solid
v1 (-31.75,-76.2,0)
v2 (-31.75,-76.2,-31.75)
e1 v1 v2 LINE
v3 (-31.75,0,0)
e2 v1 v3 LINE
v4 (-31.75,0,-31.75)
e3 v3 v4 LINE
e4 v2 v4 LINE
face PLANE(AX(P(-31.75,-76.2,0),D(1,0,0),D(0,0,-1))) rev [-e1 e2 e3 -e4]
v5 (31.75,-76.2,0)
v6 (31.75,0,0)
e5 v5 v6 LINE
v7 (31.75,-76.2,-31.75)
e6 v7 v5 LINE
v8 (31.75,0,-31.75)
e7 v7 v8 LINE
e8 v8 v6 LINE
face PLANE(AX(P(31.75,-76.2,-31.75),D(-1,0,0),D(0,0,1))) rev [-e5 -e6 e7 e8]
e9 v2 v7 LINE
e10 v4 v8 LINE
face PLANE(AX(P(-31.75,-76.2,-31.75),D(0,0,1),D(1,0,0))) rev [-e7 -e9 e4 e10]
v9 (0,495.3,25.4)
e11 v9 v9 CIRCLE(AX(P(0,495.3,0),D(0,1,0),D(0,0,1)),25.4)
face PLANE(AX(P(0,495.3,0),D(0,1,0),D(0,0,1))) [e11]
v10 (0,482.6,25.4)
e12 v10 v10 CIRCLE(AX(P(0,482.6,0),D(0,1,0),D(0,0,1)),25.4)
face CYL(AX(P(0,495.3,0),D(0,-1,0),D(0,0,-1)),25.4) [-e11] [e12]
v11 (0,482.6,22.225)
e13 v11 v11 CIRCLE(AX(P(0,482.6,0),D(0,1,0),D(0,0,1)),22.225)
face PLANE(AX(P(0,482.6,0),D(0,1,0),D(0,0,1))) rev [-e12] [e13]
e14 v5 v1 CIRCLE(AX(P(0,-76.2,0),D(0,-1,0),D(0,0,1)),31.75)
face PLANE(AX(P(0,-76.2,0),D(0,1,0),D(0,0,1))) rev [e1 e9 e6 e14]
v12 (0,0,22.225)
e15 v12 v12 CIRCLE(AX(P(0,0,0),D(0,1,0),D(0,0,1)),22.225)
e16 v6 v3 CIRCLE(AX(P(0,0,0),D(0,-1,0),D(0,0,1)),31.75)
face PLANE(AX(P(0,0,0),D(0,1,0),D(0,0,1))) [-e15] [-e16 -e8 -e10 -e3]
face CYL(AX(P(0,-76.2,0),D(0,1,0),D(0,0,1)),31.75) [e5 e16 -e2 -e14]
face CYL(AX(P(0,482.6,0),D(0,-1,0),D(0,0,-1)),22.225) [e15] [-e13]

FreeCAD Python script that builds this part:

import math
import FreeCAD as App
import Part
import Sketcher
Q = App.Units.Quantity

doc = App.newDocument("Part")
body = doc.addObject("PartDesign::Body", "Body")

# Sketch on XZ plane
sketch1 = body.newObject("Sketcher::SketchObject", "Sketch")
sketch1.AttachmentSupport = (doc.getObject("XZ_Plane"), [""])
sketch1.MapMode = "FlatFace"
sketch1.addGeometry(Part.Circle(App.Vector(0, 0, 0), App.Vector(0, 0, 1), 22), False)
sketch1.addConstraint(Sketcher.Constraint("Coincident", 0, 3, -1, 1))
sketch1.addConstraint(Sketcher.Constraint("Diameter", 0, Q("1.75 in")))
pad1 = body.newObject("PartDesign::Pad", "Pad")
pad1.Profile = sketch1
pad1.Length = Q("19 in")
pad1.Reversed = True

# Sketch on XZ plane
sketch2 = body.newObject("Sketcher::SketchObject", "Sketch001")
sketch2.AttachmentSupport = (doc.getObject("XZ_Plane"), [""])
sketch2.MapMode = "FlatFace"
sketch2.AttachmentOffset = App.Placement(App.Vector(0, 0, -19 * 25.4), App.Rotation())
sketch2.addGeometry(Part.Circle(App.Vector(0, 0, 0), App.Vector(0, 0, 1), 25), False)
sketch2.addConstraint(Sketcher.Constraint("Coincident", 0, 3, -1, 1))
sketch2.addConstraint(Sketcher.Constraint("Diameter", 0, Q("2 in")))
pad2 = body.newObject("PartDesign::Pad", "Pad001")
pad2.Profile = sketch2
pad2.Length = Q("0.5 in")
pad2.Reversed = True

# Sketch on XZ plane
sketch3 = body.newObject("Sketcher::SketchObject", "Sketch002")
sketch3.AttachmentSupport = (doc.getObject("XZ_Plane"), [""])
sketch3.MapMode = "FlatFace"
sketch3.addGeometry(Part.LineSegment(App.Vector(-32, 0, 0), App.Vector(-32, -32, 0)), False)
sketch3.addGeometry(Part.LineSegment(App.Vector(-32, -32, 0), App.Vector(32, -32, 0)), False)
sketch3.addGeometry(Part.LineSegment(App.Vector(32, -32, 0), App.Vector(32, 0, 0)), False)
sketch3.addGeometry(Part.ArcOfCircle(Part.Circle(App.Vector(0, 0, 0), App.Vector(0, 0, 1), 32), math.radians(0), math.radians(180)), False)
sketch3.addConstraint(Sketcher.Constraint("Coincident", 0, 2, 1, 1))
sketch3.addConstraint(Sketcher.Constraint("Coincident", 1, 2, 2, 1))
sketch3.addConstraint(Sketcher.Constraint("Tangent", 2, 2, 3, 1))
sketch3.addConstraint(Sketcher.Constraint("Tangent", 3, 2, 0, 1))
sketch3.addConstraint(Sketcher.Constraint("Vertical", 0))
sketch3.addConstraint(Sketcher.Constraint("Horizontal", 1))
sketch3.addConstraint(Sketcher.Constraint("Vertical", 2))
sketch3.addConstraint(Sketcher.Constraint("Coincident", 3, 3, -1, 1))
sketch3.addConstraint(Sketcher.Constraint("Radius", 3, Q("1.25 in")))
sketch3.addConstraint(Sketcher.Constraint("DistanceY", 0, 2, 0, 1, Q("1.25 in")))
pad3 = body.newObject("PartDesign::Pad", "Pad002")
pad3.Profile = sketch3
pad3.Length = Q("3 in")

doc.recompute()
